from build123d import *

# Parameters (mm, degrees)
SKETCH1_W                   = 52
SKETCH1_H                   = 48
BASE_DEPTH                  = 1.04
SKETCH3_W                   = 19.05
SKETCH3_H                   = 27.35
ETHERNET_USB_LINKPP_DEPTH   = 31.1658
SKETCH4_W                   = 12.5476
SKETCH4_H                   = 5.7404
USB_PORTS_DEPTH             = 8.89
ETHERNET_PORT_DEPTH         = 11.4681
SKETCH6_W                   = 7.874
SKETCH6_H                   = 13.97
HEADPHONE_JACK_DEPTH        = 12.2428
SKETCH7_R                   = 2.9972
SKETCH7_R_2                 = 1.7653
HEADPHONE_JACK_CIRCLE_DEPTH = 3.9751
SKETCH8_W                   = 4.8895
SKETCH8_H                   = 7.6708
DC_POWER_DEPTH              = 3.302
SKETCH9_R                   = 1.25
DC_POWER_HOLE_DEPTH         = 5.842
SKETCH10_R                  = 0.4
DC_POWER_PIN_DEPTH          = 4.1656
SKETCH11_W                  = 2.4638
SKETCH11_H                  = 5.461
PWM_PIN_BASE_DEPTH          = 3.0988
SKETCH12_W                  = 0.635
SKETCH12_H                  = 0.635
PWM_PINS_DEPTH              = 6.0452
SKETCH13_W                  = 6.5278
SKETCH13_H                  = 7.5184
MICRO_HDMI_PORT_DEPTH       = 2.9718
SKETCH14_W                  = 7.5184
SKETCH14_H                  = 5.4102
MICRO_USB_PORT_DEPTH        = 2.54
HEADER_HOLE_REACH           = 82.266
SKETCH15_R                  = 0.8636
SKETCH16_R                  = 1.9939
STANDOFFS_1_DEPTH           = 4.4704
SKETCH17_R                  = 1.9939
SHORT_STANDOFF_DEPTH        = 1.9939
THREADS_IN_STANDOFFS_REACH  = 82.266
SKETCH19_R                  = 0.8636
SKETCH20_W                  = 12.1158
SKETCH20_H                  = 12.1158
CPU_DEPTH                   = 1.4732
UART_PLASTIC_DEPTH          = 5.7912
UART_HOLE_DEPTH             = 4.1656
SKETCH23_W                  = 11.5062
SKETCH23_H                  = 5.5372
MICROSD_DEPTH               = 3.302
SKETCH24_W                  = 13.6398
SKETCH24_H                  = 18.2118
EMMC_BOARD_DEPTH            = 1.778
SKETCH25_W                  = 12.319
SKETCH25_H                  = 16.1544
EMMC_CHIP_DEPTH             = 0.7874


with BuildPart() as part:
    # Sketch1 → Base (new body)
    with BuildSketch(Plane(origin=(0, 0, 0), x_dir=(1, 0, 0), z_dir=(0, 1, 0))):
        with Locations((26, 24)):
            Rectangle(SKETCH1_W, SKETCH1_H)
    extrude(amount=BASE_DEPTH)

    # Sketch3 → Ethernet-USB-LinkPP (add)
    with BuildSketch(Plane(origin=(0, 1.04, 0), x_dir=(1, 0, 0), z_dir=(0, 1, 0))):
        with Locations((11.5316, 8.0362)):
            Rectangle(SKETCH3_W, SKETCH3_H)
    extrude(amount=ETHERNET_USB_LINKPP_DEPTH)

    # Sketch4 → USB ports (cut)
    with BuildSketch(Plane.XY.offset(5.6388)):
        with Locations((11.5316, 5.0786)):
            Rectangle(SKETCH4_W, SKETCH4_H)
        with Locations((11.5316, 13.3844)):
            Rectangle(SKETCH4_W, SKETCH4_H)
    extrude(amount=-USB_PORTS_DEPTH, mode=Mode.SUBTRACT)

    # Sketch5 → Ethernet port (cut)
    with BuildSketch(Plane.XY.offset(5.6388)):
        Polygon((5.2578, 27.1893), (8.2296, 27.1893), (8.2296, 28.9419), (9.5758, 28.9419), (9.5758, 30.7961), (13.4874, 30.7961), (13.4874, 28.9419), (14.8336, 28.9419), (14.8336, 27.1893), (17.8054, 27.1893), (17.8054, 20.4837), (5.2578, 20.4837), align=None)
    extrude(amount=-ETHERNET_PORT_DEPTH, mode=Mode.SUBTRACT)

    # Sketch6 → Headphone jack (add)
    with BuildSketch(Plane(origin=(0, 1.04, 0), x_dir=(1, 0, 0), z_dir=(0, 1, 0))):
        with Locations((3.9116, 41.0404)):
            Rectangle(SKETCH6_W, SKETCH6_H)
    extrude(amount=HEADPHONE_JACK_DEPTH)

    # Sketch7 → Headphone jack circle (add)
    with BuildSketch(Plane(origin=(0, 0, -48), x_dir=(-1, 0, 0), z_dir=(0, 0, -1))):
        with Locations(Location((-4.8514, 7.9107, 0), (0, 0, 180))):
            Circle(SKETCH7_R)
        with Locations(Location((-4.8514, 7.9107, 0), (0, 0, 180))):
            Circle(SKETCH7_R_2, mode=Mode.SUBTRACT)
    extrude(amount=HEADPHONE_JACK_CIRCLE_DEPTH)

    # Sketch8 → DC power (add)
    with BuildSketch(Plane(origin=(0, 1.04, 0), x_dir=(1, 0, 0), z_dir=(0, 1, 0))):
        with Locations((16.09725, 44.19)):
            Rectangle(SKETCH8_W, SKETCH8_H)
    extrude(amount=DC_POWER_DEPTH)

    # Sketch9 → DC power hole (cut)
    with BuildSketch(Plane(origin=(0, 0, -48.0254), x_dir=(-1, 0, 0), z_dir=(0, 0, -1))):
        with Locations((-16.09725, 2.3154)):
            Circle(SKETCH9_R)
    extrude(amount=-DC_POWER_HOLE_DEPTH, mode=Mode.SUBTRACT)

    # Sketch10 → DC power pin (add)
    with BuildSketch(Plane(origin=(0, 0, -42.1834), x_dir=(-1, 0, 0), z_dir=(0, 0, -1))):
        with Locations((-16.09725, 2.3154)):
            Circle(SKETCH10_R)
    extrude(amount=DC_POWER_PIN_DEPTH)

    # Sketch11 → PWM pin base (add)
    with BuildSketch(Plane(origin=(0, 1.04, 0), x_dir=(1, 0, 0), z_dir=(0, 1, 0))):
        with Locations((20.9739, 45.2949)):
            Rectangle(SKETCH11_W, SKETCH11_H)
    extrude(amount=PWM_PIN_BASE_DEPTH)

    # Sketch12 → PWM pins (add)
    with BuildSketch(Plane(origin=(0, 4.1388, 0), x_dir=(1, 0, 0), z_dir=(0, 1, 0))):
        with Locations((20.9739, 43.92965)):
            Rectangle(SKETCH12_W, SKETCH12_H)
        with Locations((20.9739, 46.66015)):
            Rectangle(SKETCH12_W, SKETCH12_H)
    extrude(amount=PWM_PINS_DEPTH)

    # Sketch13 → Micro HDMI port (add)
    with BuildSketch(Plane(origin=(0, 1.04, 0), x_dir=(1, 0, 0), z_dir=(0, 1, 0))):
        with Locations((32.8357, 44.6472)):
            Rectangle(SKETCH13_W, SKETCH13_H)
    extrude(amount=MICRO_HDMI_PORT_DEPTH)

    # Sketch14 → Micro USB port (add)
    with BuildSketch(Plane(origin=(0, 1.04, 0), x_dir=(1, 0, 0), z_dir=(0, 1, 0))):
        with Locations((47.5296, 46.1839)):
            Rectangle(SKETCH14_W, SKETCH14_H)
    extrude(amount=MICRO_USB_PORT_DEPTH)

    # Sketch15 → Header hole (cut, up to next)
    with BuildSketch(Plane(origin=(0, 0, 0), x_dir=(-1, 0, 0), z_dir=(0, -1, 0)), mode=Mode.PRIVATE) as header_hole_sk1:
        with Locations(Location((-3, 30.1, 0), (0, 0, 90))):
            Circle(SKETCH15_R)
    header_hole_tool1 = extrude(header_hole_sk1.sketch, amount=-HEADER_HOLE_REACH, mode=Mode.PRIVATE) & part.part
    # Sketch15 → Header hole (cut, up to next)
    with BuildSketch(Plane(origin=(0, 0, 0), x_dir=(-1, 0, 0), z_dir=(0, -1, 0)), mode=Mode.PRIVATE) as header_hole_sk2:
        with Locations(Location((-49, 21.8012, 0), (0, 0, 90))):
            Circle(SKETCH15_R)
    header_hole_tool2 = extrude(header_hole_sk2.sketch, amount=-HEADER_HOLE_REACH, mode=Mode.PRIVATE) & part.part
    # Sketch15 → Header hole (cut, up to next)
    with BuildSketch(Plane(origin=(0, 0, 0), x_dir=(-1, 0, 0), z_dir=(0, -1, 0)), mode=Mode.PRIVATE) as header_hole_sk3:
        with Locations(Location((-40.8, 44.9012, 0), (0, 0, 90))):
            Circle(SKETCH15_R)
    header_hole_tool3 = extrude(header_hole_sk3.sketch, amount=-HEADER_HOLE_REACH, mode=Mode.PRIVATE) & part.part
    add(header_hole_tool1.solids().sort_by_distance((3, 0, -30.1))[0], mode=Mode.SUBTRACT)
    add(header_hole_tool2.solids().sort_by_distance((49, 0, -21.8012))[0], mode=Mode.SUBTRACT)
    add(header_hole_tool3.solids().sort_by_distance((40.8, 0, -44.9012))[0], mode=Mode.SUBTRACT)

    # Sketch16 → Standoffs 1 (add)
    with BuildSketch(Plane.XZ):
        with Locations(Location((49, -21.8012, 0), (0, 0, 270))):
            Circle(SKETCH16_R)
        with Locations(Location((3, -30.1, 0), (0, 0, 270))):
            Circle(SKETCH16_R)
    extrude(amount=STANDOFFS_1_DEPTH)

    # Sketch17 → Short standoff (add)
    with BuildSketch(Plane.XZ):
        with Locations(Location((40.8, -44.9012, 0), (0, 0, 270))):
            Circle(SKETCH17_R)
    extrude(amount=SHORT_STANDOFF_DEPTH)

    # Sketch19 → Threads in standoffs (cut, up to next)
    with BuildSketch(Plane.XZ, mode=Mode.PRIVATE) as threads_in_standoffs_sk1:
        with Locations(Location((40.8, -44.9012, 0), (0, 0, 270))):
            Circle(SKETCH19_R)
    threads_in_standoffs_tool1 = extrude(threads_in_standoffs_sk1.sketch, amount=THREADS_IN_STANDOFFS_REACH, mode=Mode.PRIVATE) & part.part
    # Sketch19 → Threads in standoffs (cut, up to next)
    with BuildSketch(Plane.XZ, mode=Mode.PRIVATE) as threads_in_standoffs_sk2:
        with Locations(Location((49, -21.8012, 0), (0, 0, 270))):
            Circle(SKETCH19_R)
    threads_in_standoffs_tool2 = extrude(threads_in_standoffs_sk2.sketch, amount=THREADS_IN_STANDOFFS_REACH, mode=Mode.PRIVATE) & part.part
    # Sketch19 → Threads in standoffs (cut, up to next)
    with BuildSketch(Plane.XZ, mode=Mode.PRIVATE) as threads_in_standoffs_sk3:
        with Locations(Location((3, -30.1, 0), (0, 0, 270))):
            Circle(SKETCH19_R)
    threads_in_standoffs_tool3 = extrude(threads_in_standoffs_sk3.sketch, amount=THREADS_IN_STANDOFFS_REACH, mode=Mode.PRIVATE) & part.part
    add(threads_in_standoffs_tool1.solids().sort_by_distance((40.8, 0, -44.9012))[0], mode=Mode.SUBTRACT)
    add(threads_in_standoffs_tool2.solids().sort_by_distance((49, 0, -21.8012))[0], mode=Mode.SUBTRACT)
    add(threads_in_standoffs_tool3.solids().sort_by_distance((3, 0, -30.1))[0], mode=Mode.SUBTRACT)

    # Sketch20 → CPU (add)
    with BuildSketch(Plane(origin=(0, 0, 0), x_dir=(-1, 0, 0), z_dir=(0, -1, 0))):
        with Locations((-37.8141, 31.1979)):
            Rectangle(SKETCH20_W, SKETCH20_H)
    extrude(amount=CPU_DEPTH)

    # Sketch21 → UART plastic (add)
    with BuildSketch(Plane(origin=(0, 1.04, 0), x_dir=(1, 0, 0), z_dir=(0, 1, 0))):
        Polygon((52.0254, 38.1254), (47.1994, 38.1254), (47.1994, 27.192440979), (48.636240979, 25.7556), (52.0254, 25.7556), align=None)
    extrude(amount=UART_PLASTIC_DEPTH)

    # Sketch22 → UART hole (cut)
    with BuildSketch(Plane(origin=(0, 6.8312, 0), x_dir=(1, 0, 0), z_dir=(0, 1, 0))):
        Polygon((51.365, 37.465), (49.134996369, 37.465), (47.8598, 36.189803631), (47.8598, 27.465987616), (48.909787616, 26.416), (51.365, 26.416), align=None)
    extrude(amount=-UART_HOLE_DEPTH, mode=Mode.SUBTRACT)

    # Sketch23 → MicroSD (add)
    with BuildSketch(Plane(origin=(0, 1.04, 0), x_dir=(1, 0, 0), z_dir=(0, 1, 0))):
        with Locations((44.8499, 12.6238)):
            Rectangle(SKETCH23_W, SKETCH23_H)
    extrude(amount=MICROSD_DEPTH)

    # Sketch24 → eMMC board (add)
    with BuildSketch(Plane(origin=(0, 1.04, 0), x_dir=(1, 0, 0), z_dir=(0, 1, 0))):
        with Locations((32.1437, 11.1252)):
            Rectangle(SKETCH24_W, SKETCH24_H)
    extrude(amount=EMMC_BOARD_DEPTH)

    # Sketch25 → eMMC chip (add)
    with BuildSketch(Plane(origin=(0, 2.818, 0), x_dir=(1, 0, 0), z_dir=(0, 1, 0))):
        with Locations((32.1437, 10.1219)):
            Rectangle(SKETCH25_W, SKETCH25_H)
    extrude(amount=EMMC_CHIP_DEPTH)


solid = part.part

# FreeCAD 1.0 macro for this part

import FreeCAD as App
import Part
import Sketcher

V = App.Vector
Q = App.Units.Quantity

doc = App.newDocument("Part")
body = doc.addObject("PartDesign::Body", "Body")

sketch1 = body.newObject("Sketcher::SketchObject", "Sketch")
sketch1.AttachmentSupport = (doc.getObject("XZ_Plane"), [""])
sketch1.MapMode = "FlatFace"
sketch1.addGeometry(Part.LineSegment(V(0, -48, 0), V(0, 0, 0)), False)
sketch1.addGeometry(Part.LineSegment(V(0, 0, 0), V(52, 0, 0)), False)
sketch1.addGeometry(Part.LineSegment(V(52, 0, 0), V(52, -48, 0)), False)
sketch1.addGeometry(Part.LineSegment(V(52, -48, 0), V(0, -48, 0)), False)
sketch1.addConstraint(Sketcher.Constraint("Coincident", 0, 2, 1, 1))
sketch1.addConstraint(Sketcher.Constraint("Coincident", 1, 2, 2, 1))
sketch1.addConstraint(Sketcher.Constraint("Coincident", 2, 2, 3, 1))
sketch1.addConstraint(Sketcher.Constraint("Coincident", 3, 2, 0, 1))
sketch1.addConstraint(Sketcher.Constraint("Vertical", 0))
sketch1.addConstraint(Sketcher.Constraint("Horizontal", 1))
sketch1.addConstraint(Sketcher.Constraint("Vertical", 2))
sketch1.addConstraint(Sketcher.Constraint("Horizontal", 3))
sketch1.addConstraint(Sketcher.Constraint("Coincident", 0, 2, -1, 1))
sketch1.addConstraint(Sketcher.Constraint("DistanceX", 1, 1, 1, 2, 52.0))
sketch1.addConstraint(Sketcher.Constraint("DistanceY", 0, 1, 0, 2, 48.0))
pad1 = body.newObject("PartDesign::Pad", "Pad")
pad1.Profile = sketch1
pad1.Length = 1.04
pad1.Reversed = True

sketch2 = body.newObject("Sketcher::SketchObject", "Sketch001")
sketch2.AttachmentSupport = (doc.getObject("XZ_Plane"), [""])
sketch2.MapMode = "FlatFace"
sketch2.AttachmentOffset = App.Placement(V(0, 0, -1.04), App.Rotation())
sketch2.addGeometry(Part.LineSegment(V(2, -22, 0), V(2, 6, 0)), False)
sketch2.addGeometry(Part.LineSegment(V(2, 6, 0), V(21, 6, 0)), False)
sketch2.addGeometry(Part.LineSegment(V(21, 6, 0), V(21, -22, 0)), False)
sketch2.addGeometry(Part.LineSegment(V(21, -22, 0), V(2, -22, 0)), False)
sketch2.addConstraint(Sketcher.Constraint("Coincident", 0, 2, 1, 1))
sketch2.addConstraint(Sketcher.Constraint("Coincident", 1, 2, 2, 1))
sketch2.addConstraint(Sketcher.Constraint("Coincident", 2, 2, 3, 1))
sketch2.addConstraint(Sketcher.Constraint("Coincident", 3, 2, 0, 1))
sketch2.addConstraint(Sketcher.Constraint("Vertical", 0))
sketch2.addConstraint(Sketcher.Constraint("Horizontal", 1))
sketch2.addConstraint(Sketcher.Constraint("Vertical", 2))
sketch2.addConstraint(Sketcher.Constraint("Horizontal", 3))
sketch2.addConstraint(Sketcher.Constraint("DistanceX", 1, 1, 1, 2, Q("0.75 in")))
sketch2.addConstraint(Sketcher.Constraint("DistanceX", -1, 1, 0, 2, Q("0.079 in")))
sketch2.addConstraint(Sketcher.Constraint("DistanceY", -1, 1, 0, 2, Q("0.222 in")))
sketch2.addConstraint(Sketcher.Constraint("DistanceY", 0, 1, 0, 2, 27.35))
pad2 = body.newObject("PartDesign::Pad", "Pad001")
pad2.Profile = sketch2
pad2.Length = Q("1.227 in")
pad2.Reversed = True

sketch3 = body.newObject("Sketcher::SketchObject", "Sketch002")
sketch3.AttachmentSupport = (doc.getObject("XY_Plane"), [""])
sketch3.MapMode = "FlatFace"
sketch3.AttachmentOffset = App.Placement(V(0, 0, 0.222 * 25.4), App.Rotation())
sketch3.addGeometry(Part.LineSegment(V(5, 8, 0), V(5, 2, 0)), False)
sketch3.addGeometry(Part.LineSegment(V(5, 2, 0), V(18, 2, 0)), False)
sketch3.addGeometry(Part.LineSegment(V(18, 2, 0), V(18, 8, 0)), False)
sketch3.addGeometry(Part.LineSegment(V(18, 8, 0), V(5, 8, 0)), False)
sketch3.addGeometry(Part.LineSegment(V(5, 16, 0), V(5, 11, 0)), False)
sketch3.addGeometry(Part.LineSegment(V(5, 11, 0), V(18, 11, 0)), False)
sketch3.addGeometry(Part.LineSegment(V(18, 11, 0), V(18, 16, 0)), False)
sketch3.addGeometry(Part.LineSegment(V(18, 16, 0), V(5, 16, 0)), False)
sketch3.addConstraint(Sketcher.Constraint("Coincident", 0, 2, 1, 1))
sketch3.addConstraint(Sketcher.Constraint("Coincident", 1, 2, 2, 1))
sketch3.addConstraint(Sketcher.Constraint("Coincident", 2, 2, 3, 1))
sketch3.addConstraint(Sketcher.Constraint("Coincident", 3, 2, 0, 1))
sketch3.addConstraint(Sketcher.Constraint("Coincident", 4, 2, 5, 1))
sketch3.addConstraint(Sketcher.Constraint("Coincident", 5, 2, 6, 1))
sketch3.addConstraint(Sketcher.Constraint("Coincident", 6, 2, 7, 1))
sketch3.addConstraint(Sketcher.Constraint("Coincident", 7, 2, 4, 1))
sketch3.addConstraint(Sketcher.Constraint("Vertical", 0))
sketch3.addConstraint(Sketcher.Constraint("Horizontal", 1))
sketch3.addConstraint(Sketcher.Constraint("Vertical", 2))
sketch3.addConstraint(Sketcher.Constraint("Horizontal", 3))
sketch3.addConstraint(Sketcher.Constraint("Vertical", 4))
sketch3.addConstraint(Sketcher.Constraint("Horizontal", 5))
sketch3.addConstraint(Sketcher.Constraint("Vertical", 6))
sketch3.addConstraint(Sketcher.Constraint("Horizontal", 7))
sketch3.addConstraint(Sketcher.Constraint("Vertical", 3, 2, 4, 2))
sketch3.addConstraint(Sketcher.Constraint("Vertical", 2, 2, 5, 2))
sketch3.addConstraint(Sketcher.Constraint("Equal", 2, 4))
sketch3.addConstraint(Sketcher.Constraint("DistanceX", 1, 1, 1, 2, Q("0.494 in")))
sketch3.addConstraint(Sketcher.Constraint("DistanceY", 0, 2, 0, 1, Q("0.226 in")))
sketch3.addConstraint(Sketcher.Constraint("DistanceX", -1, 1, 0, 2, Q("0.207 in")))
sketch3.addConstraint(Sketcher.Constraint("DistanceY", 3, 2, 4, 2, Q("0.101 in")))
sketch3.addConstraint(Sketcher.Constraint("DistanceY", -1, 1, 0, 2, 2.2084))
pocket1 = body.newObject("PartDesign::Pocket", "Pocket")
pocket1.Profile = sketch3
pocket1.Length = Q("0.35 in")

sketch4 = body.newObject("Sketcher::SketchObject", "Sketch003")
sketch4.AttachmentSupport = (doc.getObject("XY_Plane"), [""])
sketch4.MapMode = "FlatFace"
sketch4.AttachmentOffset = App.Placement(V(0, 0, 0.222 * 25.4), App.Rotation())
sketch4.addGeometry(Part.LineSegment(V(8.2, 27.2, 0), V(5.3, 27.2, 0)), False)
sketch4.addGeometry(Part.LineSegment(V(5.3, 27.2, 0), V(5.3, 20.5, 0)), False)
sketch4.addGeometry(Part.LineSegment(V(5.3, 20.5, 0), V(17.8, 20.5, 0)), False)
sketch4.addGeometry(Part.LineSegment(V(17.8, 20.5, 0), V(17.8, 27.2, 0)), False)
sketch4.addGeometry(Part.LineSegment(V(17.8, 27.2, 0), V(14.8, 27.2, 0)), False)
sketch4.addGeometry(Part.LineSegment(V(14.8, 27.2, 0), V(14.8, 28.9, 0)), False)
sketch4.addGeometry(Part.LineSegment(V(14.8, 28.9, 0), V(13.5, 28.9, 0)), False)
sketch4.addGeometry(Part.LineSegment(V(13.5, 28.9, 0), V(13.5, 30.8, 0)), False)
sketch4.addGeometry(Part.LineSegment(V(13.5, 30.8, 0), V(9.6, 30.8, 0)), False)
sketch4.addGeometry(Part.LineSegment(V(9.6, 30.8, 0), V(9.6, 28.9, 0)), False)
sketch4.addGeometry(Part.LineSegment(V(9.6, 28.9, 0), V(8.2, 28.9, 0)), False)
sketch4.addGeometry(Part.LineSegment(V(8.2, 28.9, 0), V(8.2, 27.2, 0)), False)
sketch4.addConstraint(Sketcher.Constraint("Coincident", 0, 2, 1, 1))
sketch4.addConstraint(Sketcher.Constraint("Coincident", 1, 2, 2, 1))
sketch4.addConstraint(Sketcher.Constraint("Coincident", 2, 2, 3, 1))
sketch4.addConstraint(Sketcher.Constraint("Coincident", 3, 2, 4, 1))
sketch4.addConstraint(Sketcher.Constraint("Coincident", 4, 2, 5, 1))
sketch4.addConstraint(Sketcher.Constraint("Coincident", 5, 2, 6, 1))
sketch4.addConstraint(Sketcher.Constraint("Coincident", 6, 2, 7, 1))
sketch4.addConstraint(Sketcher.Constraint("Coincident", 7, 2, 8, 1))
sketch4.addConstraint(Sketcher.Constraint("Coincident", 8, 2, 9, 1))
sketch4.addConstraint(Sketcher.Constraint("Coincident", 9, 2, 10, 1))
sketch4.addConstraint(Sketcher.Constraint("Coincident", 10, 2, 11, 1))
sketch4.addConstraint(Sketcher.Constraint("Coincident", 11, 2, 0, 1))
sketch4.addConstraint(Sketcher.Constraint("Horizontal", 0))
sketch4.addConstraint(Sketcher.Constraint("Vertical", 1))
sketch4.addConstraint(Sketcher.Constraint("Horizontal", 2))
sketch4.addConstraint(Sketcher.Constraint("Vertical", 3))
sketch4.addConstraint(Sketcher.Constraint("Horizontal", 4))
sketch4.addConstraint(Sketcher.Constraint("Vertical", 5))
sketch4.addConstraint(Sketcher.Constraint("Horizontal", 6))
sketch4.addConstraint(Sketcher.Constraint("Vertical", 7))
sketch4.addConstraint(Sketcher.Constraint("Horizontal", 8))
sketch4.addConstraint(Sketcher.Constraint("Vertical", 9))
sketch4.addConstraint(Sketcher.Constraint("Horizontal", 10))
sketch4.addConstraint(Sketcher.Constraint("Vertical", 11))
sketch4.addConstraint(Sketcher.Constraint("Horizontal", 0, 2, 3, 2))
sketch4.addConstraint(Sketcher.Constraint("Horizontal", 6, 2, 9, 2))
sketch4.addConstraint(Sketcher.Constraint("Equal", 0, 4))
sketch4.addConstraint(Sketcher.Constraint("Equal", 6, 10))
sketch4.addConstraint(Sketcher.Constraint("DistanceX", 0, 2, 0, 1, Q("0.117 in")))
sketch4.addConstraint(Sketcher.Constraint("DistanceX", 2, 1, 2, 2, Q("0.494 in")))
sketch4.addConstraint(Sketcher.Constraint("DistanceX", 6, 2, 6, 1, Q("0.053 in")))
sketch4.addConstraint(Sketcher.Constraint("DistanceY", 1, 2, 1, 1, Q("0.264 in")))
sketch4.addConstraint(Sketcher.Constraint("DistanceY", 5, 1, 5, 2, Q("0.069 in")))
sketch4.addConstraint(Sketcher.Constraint("DistanceY", 7, 1, 7, 2, Q("0.073 in")))
sketch4.addConstraint(Sketcher.Constraint("DistanceX", -1, 1, 0, 2, Q("0.207 in")))
sketch4.addConstraint(Sketcher.Constraint("DistanceY", -1, 1, 0, 2, 27.1893))
pocket2 = body.newObject("PartDesign::Pocket", "Pocket001")
pocket2.Profile = sketch4
pocket2.Length = Q("0.4515 in")

sketch5 = body.newObject("Sketcher::SketchObject", "Sketch004")
sketch5.AttachmentSupport = (doc.getObject("XZ_Plane"), [""])
sketch5.MapMode = "FlatFace"
sketch5.AttachmentOffset = App.Placement(V(0, 0, -1.04), App.Rotation())
sketch5.addGeometry(Part.LineSegment(V(0, -48, 0), V(0, -34, 0)), False)
sketch5.addGeometry(Part.LineSegment(V(0, -34, 0), V(8, -34, 0)), False)
sketch5.addGeometry(Part.LineSegment(V(8, -34, 0), V(8, -48, 0)), False)
sketch5.addGeometry(Part.LineSegment(V(8, -48, 0), V(0, -48, 0)), False)
sketch5.addConstraint(Sketcher.Constraint("Coincident", 0, 2, 1, 1))
sketch5.addConstraint(Sketcher.Constraint("Coincident", 1, 2, 2, 1))
sketch5.addConstraint(Sketcher.Constraint("Coincident", 2, 2, 3, 1))
sketch5.addConstraint(Sketcher.Constraint("Coincident", 3, 2, 0, 1))
sketch5.addConstraint(Sketcher.Constraint("Vertical", 0))
sketch5.addConstraint(Sketcher.Constraint("Horizontal", 1))
sketch5.addConstraint(Sketcher.Constraint("Vertical", 2))
sketch5.addConstraint(Sketcher.Constraint("Horizontal", 3))
sketch5.addConstraint(Sketcher.Constraint("DistanceX", 1, 1, 1, 2, Q("0.31 in")))
sketch5.addConstraint(Sketcher.Constraint("DistanceY", 0, 1, 0, 2, Q("0.55 in")))
sketch5.addConstraint(Sketcher.Constraint("DistanceX", 0, 2, -1, 1, Q("0.001 in")))
sketch5.addConstraint(Sketcher.Constraint("DistanceY", 0, 2, -1, 1, 34.0554))
pad3 = body.newObject("PartDesign::Pad", "Pad002")
pad3.Profile = sketch5
pad3.Length = Q("0.482 in")
pad3.Reversed = True

sketch6 = body.newObject("Sketcher::SketchObject", "Sketch005")
sketch6.AttachmentSupport = (doc.getObject("XY_Plane"), [""])
sketch6.MapMode = "FlatFace"
sketch6.AttachmentOffset = App.Placement(V(0, 0, -48), App.Rotation())
sketch6.addGeometry(Part.Circle(V(4.9, 7.9, 0), V(0, 0, 1), 3), False)
sketch6.addGeometry(Part.Circle(V(4.9, 7.9, 0), V(0, 0, 1), 1.8), False)
sketch6.addConstraint(Sketcher.Constraint("Coincident", 1, 3, 0, 3))
sketch6.addConstraint(Sketcher.Constraint("Diameter", 0, Q("0.236 in")))
sketch6.addConstraint(Sketcher.Constraint("Diameter", 1, Q("0.139 in")))
sketch6.addConstraint(Sketcher.Constraint("DistanceX", -1, 1, 0, 3, Q("0.191 in")))
sketch6.addConstraint(Sketcher.Constraint("DistanceY", -1, 1, 0, 3, 7.9107))
pad4 = body.newObject("PartDesign::Pad", "Pad003")
pad4.Profile = sketch6
pad4.Length = Q("0.1565 in")
pad4.Reversed = True

sketch7 = body.newObject("Sketcher::SketchObject", "Sketch006")
sketch7.AttachmentSupport = (doc.getObject("XZ_Plane"), [""])
sketch7.MapMode = "FlatFace"
sketch7.AttachmentOffset = App.Placement(V(0, 0, -1.04), App.Rotation())
sketch7.addGeometry(Part.LineSegment(V(13.7, -48, 0), V(13.7, -40.4, 0)), False)
sketch7.addGeometry(Part.LineSegment(V(13.7, -40.4, 0), V(18.5, -40.4, 0)), False)
sketch7.addGeometry(Part.LineSegment(V(18.5, -40.4, 0), V(18.5, -48, 0)), False)
sketch7.addGeometry(Part.LineSegment(V(18.5, -48, 0), V(13.7, -48, 0)), False)
sketch7.addConstraint(Sketcher.Constraint("Coincident", 0, 2, 1, 1))
sketch7.addConstraint(Sketcher.Constraint("Coincident", 1, 2, 2, 1))
sketch7.addConstraint(Sketcher.Constraint("Coincident", 2, 2, 3, 1))
sketch7.addConstraint(Sketcher.Constraint("Coincident", 3, 2, 0, 1))
sketch7.addConstraint(Sketcher.Constraint("Vertical", 0))
sketch7.addConstraint(Sketcher.Constraint("Horizontal", 1))
sketch7.addConstraint(Sketcher.Constraint("Vertical", 2))
sketch7.addConstraint(Sketcher.Constraint("Horizontal", 3))
sketch7.addConstraint(Sketcher.Constraint("DistanceY", 0, 1, 0, 2, Q("0.302 in")))
sketch7.addConstraint(Sketcher.Constraint("DistanceX", -1, 1, 1, 2, Q("0.73 in")))
sketch7.addConstraint(Sketcher.Constraint("DistanceX", 1, 1, 1, 2, Q("0.1925 in")))
sketch7.addConstraint(Sketcher.Constraint("DistanceY", 0, 2, -1, 1, 40.3546))
pad5 = body.newObject("PartDesign::Pad", "Pad004")
pad5.Profile = sketch7
pad5.Length = Q("0.13 in")
pad5.Reversed = True

sketch8 = body.newObject("Sketcher::SketchObject", "Sketch007")
sketch8.AttachmentSupport = (doc.getObject("XY_Plane"), [""])
sketch8.MapMode = "FlatFace"
sketch8.AttachmentOffset = App.Placement(V(0, 0, -48.0254), App.Rotation())
sketch8.addGeometry(Part.Circle(V(16.1, 2.3, 0), V(0, 0, 1), 1.2), False)
sketch8.addConstraint(Sketcher.Constraint("Diameter", 0, 2.5))
sketch8.addConstraint(Sketcher.Constraint("DistanceY", -1, 1, 0, 3, 2.3154))
sketch8.addConstraint(Sketcher.Constraint("DistanceX", -1, 1, 0, 3, 16.09725))
pocket3 = body.newObject("PartDesign::Pocket", "Pocket002")
pocket3.Profile = sketch8
pocket3.Length = Q("0.23 in")
pocket3.Reversed = True

sketch9 = body.newObject("Sketcher::SketchObject", "Sketch008")
sketch9.AttachmentSupport = (doc.getObject("XY_Plane"), [""])
sketch9.MapMode = "FlatFace"
sketch9.AttachmentOffset = App.Placement(V(0, 0, -42.1834), App.Rotation())
sketch9.addGeometry(Part.Circle(V(16.1, 2.32, 0), V(0, 0, 1), 0.4), False)
sketch9.addConstraint(Sketcher.Constraint("Diameter", 0, 0.8))
sketch9.addConstraint(Sketcher.Constraint("DistanceY", -1, 1, 0, 3, 2.3154))
sketch9.addConstraint(Sketcher.Constraint("DistanceX", -1, 1, 0, 3, 16.09725))
pad6 = body.newObject("PartDesign::Pad", "Pad005")
pad6.Profile = sketch9
pad6.Length = Q("0.164 in")
pad6.Reversed = True

sketch10 = body.newObject("Sketcher::SketchObject", "Sketch009")
sketch10.AttachmentSupport = (doc.getObject("XZ_Plane"), [""])
sketch10.MapMode = "FlatFace"
sketch10.AttachmentOffset = App.Placement(V(0, 0, -1.04), App.Rotation())
sketch10.addGeometry(Part.LineSegment(V(19.7, -48, 0), V(19.7, -42.6, 0)), False)
sketch10.addGeometry(Part.LineSegment(V(19.7, -42.6, 0), V(22.2, -42.6, 0)), False)
sketch10.addGeometry(Part.LineSegment(V(22.2, -42.6, 0), V(22.2, -48, 0)), False)
sketch10.addGeometry(Part.LineSegment(V(22.2, -48, 0), V(19.7, -48, 0)), False)
sketch10.addConstraint(Sketcher.Constraint("Coincident", 0, 2, 1, 1))
sketch10.addConstraint(Sketcher.Constraint("Coincident", 1, 2, 2, 1))
sketch10.addConstraint(Sketcher.Constraint("Coincident", 2, 2, 3, 1))
sketch10.addConstraint(Sketcher.Constraint("Coincident", 3, 2, 0, 1))
sketch10.addConstraint(Sketcher.Constraint("Vertical", 0))
sketch10.addConstraint(Sketcher.Constraint("Horizontal", 1))
sketch10.addConstraint(Sketcher.Constraint("Vertical", 2))
sketch10.addConstraint(Sketcher.Constraint("Horizontal", 3))
sketch10.addConstraint(Sketcher.Constraint("DistanceX", 1, 1, 1, 2, Q("0.097 in")))
sketch10.addConstraint(Sketcher.Constraint("DistanceY", 0, 1, 0, 2, Q("0.215 in")))
sketch10.addConstraint(Sketcher.Constraint("DistanceX", -1, 1, 0, 2, 19.742))
sketch10.addConstraint(Sketcher.Constraint("DistanceY", 0, 2, -1, 1, 42.5644))
pad7 = body.newObject("PartDesign::Pad", "Pad006")
pad7.Profile = sketch10
pad7.Length = Q("0.122 in")
pad7.Reversed = True

sketch11 = body.newObject("Sketcher::SketchObject", "Sketch010")
sketch11.AttachmentSupport = (doc.getObject("XZ_Plane"), [""])
sketch11.MapMode = "FlatFace"
sketch11.AttachmentOffset = App.Placement(V(0, 0, -4.1388), App.Rotation())
sketch11.addGeometry(Part.LineSegment(V(20.7, -44.2, 0), V(20.7, -43.6, 0)), False)
sketch11.addGeometry(Part.LineSegment(V(20.7, -43.6, 0), V(21.3, -43.6, 0)), False)
sketch11.addGeometry(Part.LineSegment(V(21.3, -43.6, 0), V(21.3, -44.2, 0)), False)
sketch11.addGeometry(Part.LineSegment(V(21.3, -44.2, 0), V(20.7, -44.2, 0)), False)
sketch11.addGeometry(Part.LineSegment(V(20.7, -47, 0), V(20.7, -46.3, 0)), False)
sketch11.addGeometry(Part.LineSegment(V(20.7, -46.3, 0), V(21.3, -46.3, 0)), False)
sketch11.addGeometry(Part.LineSegment(V(21.3, -46.3, 0), V(21.3, -47, 0)), False)
sketch11.addGeometry(Part.LineSegment(V(21.3, -47, 0), V(20.7, -47, 0)), False)
sketch11.addConstraint(Sketcher.Constraint("Coincident", 0, 2, 1, 1))
sketch11.addConstraint(Sketcher.Constraint("Coincident", 1, 2, 2, 1))
sketch11.addConstraint(Sketcher.Constraint("Coincident", 2, 2, 3, 1))
sketch11.addConstraint(Sketcher.Constraint("Coincident", 3, 2, 0, 1))
sketch11.addConstraint(Sketcher.Constraint("Coincident", 4, 2, 5, 1))
sketch11.addConstraint(Sketcher.Constraint("Coincident", 5, 2, 6, 1))
sketch11.addConstraint(Sketcher.Constraint("Coincident", 6, 2, 7, 1))
sketch11.addConstraint(Sketcher.Constraint("Coincident", 7, 2, 4, 1))
sketch11.addConstraint(Sketcher.Constraint("Vertical", 0))
sketch11.addConstraint(Sketcher.Constraint("Horizontal", 1))
sketch11.addConstraint(Sketcher.Constraint("Vertical", 2))
sketch11.addConstraint(Sketcher.Constraint("Horizontal", 3))
sketch11.addConstraint(Sketcher.Constraint("Vertical", 4))
sketch11.addConstraint(Sketcher.Constraint("Horizontal", 5))
sketch11.addConstraint(Sketcher.Constraint("Vertical", 6))
sketch11.addConstraint(Sketcher.Constraint("Horizontal", 7))
sketch11.addConstraint(Sketcher.Constraint("Vertical", 3, 2, 4, 2))
sketch11.addConstraint(Sketcher.Constraint("Vertical", 2, 2, 5, 2))
sketch11.addConstraint(Sketcher.Constraint("Equal", 7, 0))
sketch11.addConstraint(Sketcher.Constraint("Equal", 2, 4))
sketch11.addConstraint(Sketcher.Constraint("DistanceX", 1, 1, 1, 2, Q("0.025 in")))
sketch11.addConstraint(Sketcher.Constraint("DistanceY", 4, 2, 3, 2, Q("0.0825 in")))
sketch11.addConstraint(Sketcher.Constraint("DistanceX", -1, 1, 0, 2, 20.6564))
sketch11.addConstraint(Sketcher.Constraint("DistanceY", 0, 2, -1, 1, 43.61215))
pad8 = body.newObject("PartDesign::Pad", "Pad007")
pad8.Profile = sketch11
pad8.Length = Q("0.238 in")
pad8.Reversed = True

sketch12 = body.newObject("Sketcher::SketchObject", "Sketch011")
sketch12.AttachmentSupport = (doc.getObject("XZ_Plane"), [""])
sketch12.MapMode = "FlatFace"
sketch12.AttachmentOffset = App.Placement(V(0, 0, -1.04), App.Rotation())
sketch12.addGeometry(Part.LineSegment(V(30, -48, 0), V(30, -41, 0)), False)
sketch12.addGeometry(Part.LineSegment(V(30, -41, 0), V(36, -41, 0)), False)
sketch12.addGeometry(Part.LineSegment(V(36, -41, 0), V(36, -48, 0)), False)
sketch12.addGeometry(Part.LineSegment(V(36, -48, 0), V(30, -48, 0)), False)
sketch12.addConstraint(Sketcher.Constraint("Coincident", 0, 2, 1, 1))
sketch12.addConstraint(Sketcher.Constraint("Coincident", 1, 2, 2, 1))
sketch12.addConstraint(Sketcher.Constraint("Coincident", 2, 2, 3, 1))
sketch12.addConstraint(Sketcher.Constraint("Coincident", 3, 2, 0, 1))
sketch12.addConstraint(Sketcher.Constraint("Vertical", 0))
sketch12.addConstraint(Sketcher.Constraint("Horizontal", 1))
sketch12.addConstraint(Sketcher.Constraint("Vertical", 2))
sketch12.addConstraint(Sketcher.Constraint("Horizontal", 3))
sketch12.addConstraint(Sketcher.Constraint("DistanceX", 1, 1, 1, 2, Q("0.257 in")))
sketch12.addConstraint(Sketcher.Constraint("DistanceY", 0, 1, 0, 2, Q("0.296 in")))
sketch12.addConstraint(Sketcher.Constraint("DistanceX", -1, 1, 0, 2, 29.5718))
sketch12.addConstraint(Sketcher.Constraint("DistanceY", 0, 2, -1, 1, 40.888))
pad9 = body.newObject("PartDesign::Pad", "Pad008")
pad9.Profile = sketch12
pad9.Length = Q("0.117 in")
pad9.Reversed = True

sketch13 = body.newObject("Sketcher::SketchObject", "Sketch012")
sketch13.AttachmentSupport = (doc.getObject("XZ_Plane"), [""])
sketch13.MapMode = "FlatFace"
sketch13.AttachmentOffset = App.Placement(V(0, 0, -1.04), App.Rotation())
sketch13.addGeometry(Part.LineSegment(V(44, -49, 0), V(44, -43, 0)), False)
sketch13.addGeometry(Part.LineSegment(V(44, -43, 0), V(51, -43, 0)), False)
sketch13.addGeometry(Part.LineSegment(V(51, -43, 0), V(51, -49, 0)), False)
sketch13.addGeometry(Part.LineSegment(V(51, -49, 0), V(44, -49, 0)), False)
sketch13.addConstraint(Sketcher.Constraint("Coincident", 0, 2, 1, 1))
sketch13.addConstraint(Sketcher.Constraint("Coincident", 1, 2, 2, 1))
sketch13.addConstraint(Sketcher.Constraint("Coincident", 2, 2, 3, 1))
sketch13.addConstraint(Sketcher.Constraint("Coincident", 3, 2, 0, 1))
sketch13.addConstraint(Sketcher.Constraint("Vertical", 0))
sketch13.addConstraint(Sketcher.Constraint("Horizontal", 1))
sketch13.addConstraint(Sketcher.Constraint("Vertical", 2))
sketch13.addConstraint(Sketcher.Constraint("Horizontal", 3))
sketch13.addConstraint(Sketcher.Constraint("DistanceX", 1, 1, 1, 2, Q("0.296 in")))
sketch13.addConstraint(Sketcher.Constraint("DistanceY", 0, 1, 0, 2, Q("0.213 in")))
sketch13.addConstraint(Sketcher.Constraint("DistanceX", -1, 1, 0, 2, 43.7704))
sketch13.addConstraint(Sketcher.Constraint("DistanceY", 0, 2, -1, 1, 43.4788))
pad10 = body.newObject("PartDesign::Pad", "Pad009")
pad10.Profile = sketch13
pad10.Length = Q("0.1 in")
pad10.Reversed = True

sketch14 = body.newObject("Sketcher::SketchObject", "Sketch013")
sketch14.AttachmentSupport = (doc.getObject("XZ_Plane"), [""])
sketch14.MapMode = "FlatFace"
sketch14.addGeometry(Part.Circle(V(3, -30.1, 0), V(0, 0, 1), 0.9), False)
sketch14.addConstraint(Sketcher.Constraint("Diameter", 0, Q("0.068 in")))
sketch14.addConstraint(Sketcher.Constraint("DistanceX", -1, 1, 0, 3, 3.0))
sketch14.addConstraint(Sketcher.Constraint("DistanceY", 0, 3, -1, 1, 30.1))
pocket4 = body.newObject("PartDesign::Pocket", "Pocket003")
pocket4.Profile = sketch14
pocket4.Type = "UpToFirst"

sketch15 = body.newObject("Sketcher::SketchObject", "Sketch014")
sketch15.AttachmentSupport = (doc.getObject("XZ_Plane"), [""])
sketch15.MapMode = "FlatFace"
sketch15.addGeometry(Part.Circle(V(49, -21.8, 0), V(0, 0, 1), 0.9), False)
sketch15.addConstraint(Sketcher.Constraint("Diameter", 0, Q("0.068 in")))
sketch15.addConstraint(Sketcher.Constraint("DistanceX", -1, 1, 0, 3, 49.0))
sketch15.addConstraint(Sketcher.Constraint("DistanceY", 0, 3, -1, 1, 21.8012))
pocket5 = body.newObject("PartDesign::Pocket", "Pocket004")
pocket5.Profile = sketch15
pocket5.Type = "UpToFirst"

sketch16 = body.newObject("Sketcher::SketchObject", "Sketch015")
sketch16.AttachmentSupport = (doc.getObject("XZ_Plane"), [""])
sketch16.MapMode = "FlatFace"
sketch16.addGeometry(Part.Circle(V(40.8, -44.9, 0), V(0, 0, 1), 0.9), False)
sketch16.addConstraint(Sketcher.Constraint("Diameter", 0, Q("0.068 in")))
sketch16.addConstraint(Sketcher.Constraint("DistanceX", -1, 1, 0, 3, 40.8))
sketch16.addConstraint(Sketcher.Constraint("DistanceY", 0, 3, -1, 1, 44.9012))
pocket6 = body.newObject("PartDesign::Pocket", "Pocket005")
pocket6.Profile = sketch16
pocket6.Type = "UpToFirst"

sketch17 = body.newObject("Sketcher::SketchObject", "Sketch016")
sketch17.AttachmentSupport = (doc.getObject("XZ_Plane"), [""])
sketch17.MapMode = "FlatFace"
sketch17.addGeometry(Part.Circle(V(49, -21.8, 0), V(0, 0, 1), 2), False)
sketch17.addGeometry(Part.Circle(V(3, -30.1, 0), V(0, 0, 1), 2), False)
sketch17.addConstraint(Sketcher.Constraint("Equal", 0, 1))
sketch17.addConstraint(Sketcher.Constraint("Diameter", 0, Q("0.157 in")))
sketch17.addConstraint(Sketcher.Constraint("DistanceX", -1, 1, 0, 3, 49.0))
sketch17.addConstraint(Sketcher.Constraint("DistanceY", 0, 3, -1, 1, 21.8012))
sketch17.addConstraint(Sketcher.Constraint("DistanceX", -1, 1, 1, 3, 3.0))
sketch17.addConstraint(Sketcher.Constraint("DistanceY", 1, 3, -1, 1, 30.1))
pad11 = body.newObject("PartDesign::Pad", "Pad010")
pad11.Profile = sketch17
pad11.Length = Q("0.176 in")

sketch18 = body.newObject("Sketcher::SketchObject", "Sketch017")
sketch18.AttachmentSupport = (doc.getObject("XZ_Plane"), [""])
sketch18.MapMode = "FlatFace"
sketch18.addGeometry(Part.Circle(V(40.8, -44.9, 0), V(0, 0, 1), 2), False)
sketch18.addConstraint(Sketcher.Constraint("Diameter", 0, Q("0.157 in")))
sketch18.addConstraint(Sketcher.Constraint("DistanceX", -1, 1, 0, 3, 40.8))
sketch18.addConstraint(Sketcher.Constraint("DistanceY", 0, 3, -1, 1, 44.9012))
pad12 = body.newObject("PartDesign::Pad", "Pad011")
pad12.Profile = sketch18
pad12.Length = Q("0.0785 in")

sketch19 = body.newObject("Sketcher::SketchObject", "Sketch018")
sketch19.AttachmentSupport = (doc.getObject("XZ_Plane"), [""])
sketch19.MapMode = "FlatFace"
sketch19.addGeometry(Part.Circle(V(40.8, -44.9, 0), V(0, 0, 1), 0.9), False)
sketch19.addConstraint(Sketcher.Constraint("Diameter", 0, Q("0.068 in")))
sketch19.addConstraint(Sketcher.Constraint("DistanceX", -1, 1, 0, 3, 40.8))
sketch19.addConstraint(Sketcher.Constraint("DistanceY", 0, 3, -1, 1, 44.9012))
pocket7 = body.newObject("PartDesign::Pocket", "Pocket006")
pocket7.Profile = sketch19
pocket7.Type = "UpToFirst"
pocket7.Reversed = True

sketch20 = body.newObject("Sketcher::SketchObject", "Sketch019")
sketch20.AttachmentSupport = (doc.getObject("XZ_Plane"), [""])
sketch20.MapMode = "FlatFace"
sketch20.addGeometry(Part.Circle(V(49, -21.8, 0), V(0, 0, 1), 0.9), False)
sketch20.addConstraint(Sketcher.Constraint("Diameter", 0, Q("0.068 in")))
sketch20.addConstraint(Sketcher.Constraint("DistanceX", -1, 1, 0, 3, 49.0))
sketch20.addConstraint(Sketcher.Constraint("DistanceY", 0, 3, -1, 1, 21.8012))
pocket8 = body.newObject("PartDesign::Pocket", "Pocket007")
pocket8.Profile = sketch20
pocket8.Type = "UpToFirst"
pocket8.Reversed = True

sketch21 = body.newObject("Sketcher::SketchObject", "Sketch020")
sketch21.AttachmentSupport = (doc.getObject("XZ_Plane"), [""])
sketch21.MapMode = "FlatFace"
sketch21.addGeometry(Part.Circle(V(3, -30.1, 0), V(0, 0, 1), 0.9), False)
sketch21.addConstraint(Sketcher.Constraint("Diameter", 0, Q("0.068 in")))
sketch21.addConstraint(Sketcher.Constraint("DistanceX", -1, 1, 0, 3, 3.0))
sketch21.addConstraint(Sketcher.Constraint("DistanceY", 0, 3, -1, 1, 30.1))
pocket9 = body.newObject("PartDesign::Pocket", "Pocket008")
pocket9.Profile = sketch21
pocket9.Type = "UpToFirst"
pocket9.Reversed = True

sketch22 = body.newObject("Sketcher::SketchObject", "Sketch021")
sketch22.AttachmentSupport = (doc.getObject("XZ_Plane"), [""])
sketch22.MapMode = "FlatFace"
sketch22.addGeometry(Part.LineSegment(V(44, -37, 0), V(44, -25, 0)), False)
sketch22.addGeometry(Part.LineSegment(V(44, -25, 0), V(32, -25, 0)), False)
sketch22.addGeometry(Part.LineSegment(V(32, -25, 0), V(32, -37, 0)), False)
sketch22.addGeometry(Part.LineSegment(V(32, -37, 0), V(44, -37, 0)), False)
sketch22.addConstraint(Sketcher.Constraint("Coincident", 0, 2, 1, 1))
sketch22.addConstraint(Sketcher.Constraint("Coincident", 1, 2, 2, 1))
sketch22.addConstraint(Sketcher.Constraint("Coincident", 2, 2, 3, 1))
sketch22.addConstraint(Sketcher.Constraint("Coincident", 3, 2, 0, 1))
sketch22.addConstraint(Sketcher.Constraint("Vertical", 0))
sketch22.addConstraint(Sketcher.Constraint("Horizontal", 1))
sketch22.addConstraint(Sketcher.Constraint("Vertical", 2))
sketch22.addConstraint(Sketcher.Constraint("Horizontal", 3))
sketch22.addConstraint(Sketcher.Constraint("Equal", 3, 0))
sketch22.addConstraint(Sketcher.Constraint("DistanceX", 1, 2, 1, 1, Q("0.477 in")))
sketch22.addConstraint(Sketcher.Constraint("DistanceX", -1, 1, 0, 2, 43.872))
sketch22.addConstraint(Sketcher.Constraint("DistanceY", 0, 2, -1, 1, 25.14))
pad13 = body.newObject("PartDesign::Pad", "Pad012")
pad13.Profile = sketch22
pad13.Length = Q("0.058 in")

sketch23 = body.newObject("Sketcher::SketchObject", "Sketch022")
sketch23.AttachmentSupport = (doc.getObject("XZ_Plane"), [""])
sketch23.MapMode = "FlatFace"
sketch23.AttachmentOffset = App.Placement(V(0, 0, -1.04), App.Rotation())
sketch23.addGeometry(Part.LineSegment(V(52, -38.1, 0), V(47.2, -38.1, 0)), False)
sketch23.addGeometry(Part.LineSegment(V(47.2, -38.1, 0), V(47.2, -27.2, 0)), False)
sketch23.addGeometry(Part.LineSegment(V(47.2, -27.2, 0), V(48.6, -25.8, 0)), False)
sketch23.addGeometry(Part.LineSegment(V(48.6, -25.8, 0), V(52, -25.8, 0)), False)
sketch23.addGeometry(Part.LineSegment(V(52, -25.8, 0), V(52, -38.1, 0)), False)
sketch23.addConstraint(Sketcher.Constraint("Coincident", 0, 2, 1, 1))
sketch23.addConstraint(Sketcher.Constraint("Coincident", 1, 2, 2, 1))
sketch23.addConstraint(Sketcher.Constraint("Coincident", 2, 2, 3, 1))
sketch23.addConstraint(Sketcher.Constraint("Coincident", 3, 2, 4, 1))
sketch23.addConstraint(Sketcher.Constraint("Coincident", 4, 2, 0, 1))
sketch23.addConstraint(Sketcher.Constraint("Horizontal", 0))
sketch23.addConstraint(Sketcher.Constraint("Vertical", 1))
sketch23.addConstraint(Sketcher.Constraint("Horizontal", 3))
sketch23.addConstraint(Sketcher.Constraint("Vertical", 4))
sketch23.addConstraint(Sketcher.Constraint("Angle", 2, Q("45 deg")))
sketch23.addConstraint(Sketcher.Constraint("DistanceX", 0, 2, 0, 1, Q("0.19 in")))
sketch23.addConstraint(Sketcher.Constraint("Distance", 2, Q("0.08 in")))
sketch23.addConstraint(Sketcher.Constraint("DistanceY", 4, 2, 4, 1, Q("0.487 in")))
sketch23.addConstraint(Sketcher.Constraint("DistanceY", 0, 2, -1, 1, Q("1.501 in")))
sketch23.addConstraint(Sketcher.Constraint("DistanceX", -1, 1, 0, 2, 47.1994))
pad14 = body.newObject("PartDesign::Pad", "Pad013")
pad14.Profile = sketch23
pad14.Length = Q("0.228 in")
pad14.Reversed = True

sketch24 = body.newObject("Sketcher::SketchObject", "Sketch023")
sketch24.AttachmentSupport = (doc.getObject("XZ_Plane"), [""])
sketch24.MapMode = "FlatFace"
sketch24.AttachmentOffset = App.Placement(V(0, 0, -6.8312), App.Rotation())
sketch24.addGeometry(Part.LineSegment(V(51.4, -37.5, 0), V(49.1, -37.5, 0)), False)
sketch24.addGeometry(Part.LineSegment(V(49.1, -37.5, 0), V(47.9, -36.2, 0)), False)
sketch24.addGeometry(Part.LineSegment(V(47.9, -36.2, 0), V(47.9, -27.5, 0)), False)
sketch24.addGeometry(Part.LineSegment(V(47.9, -27.5, 0), V(48.9, -26.4, 0)), False)
sketch24.addGeometry(Part.LineSegment(V(48.9, -26.4, 0), V(51.4, -26.4, 0)), False)
sketch24.addGeometry(Part.LineSegment(V(51.4, -26.4, 0), V(51.4, -37.5, 0)), False)
sketch24.addConstraint(Sketcher.Constraint("Coincident", 0, 2, 1, 1))
sketch24.addConstraint(Sketcher.Constraint("Coincident", 1, 2, 2, 1))
sketch24.addConstraint(Sketcher.Constraint("Coincident", 2, 2, 3, 1))
sketch24.addConstraint(Sketcher.Constraint("Coincident", 3, 2, 4, 1))
sketch24.addConstraint(Sketcher.Constraint("Coincident", 4, 2, 5, 1))
sketch24.addConstraint(Sketcher.Constraint("Coincident", 5, 2, 0, 1))
sketch24.addConstraint(Sketcher.Constraint("Horizontal", 0))
sketch24.addConstraint(Sketcher.Constraint("Vertical", 2))
sketch24.addConstraint(Sketcher.Constraint("Horizontal", 4))
sketch24.addConstraint(Sketcher.Constraint("Vertical", 5))
sketch24.addConstraint(Sketcher.Constraint("Perpendicular", 1, 3))
sketch24.addConstraint(Sketcher.Constraint("Angle", 1, Q("135 deg")))
sketch24.addConstraint(Sketcher.Constraint("DistanceY", 5, 2, 5, 1, Q("0.435 in")))
sketch24.addConstraint(Sketcher.Constraint("DistanceY", 3, 2, -1, 1, Q("1.04 in")))
sketch24.addConstraint(Sketcher.Constraint("Distance", 1, Q("0.071 in")))
sketch24.addConstraint(Sketcher.Constraint("DistanceX", 2, 2, 4, 2, Q("0.138 in")))
sketch24.addConstraint(Sketcher.Constraint("DistanceX", -1, 1, 1, 2, 47.8598))
sketch24.addConstraint(Sketcher.Constraint("DistanceX", 4, 1, 4, 2, 2.455212))
pocket10 = body.newObject("PartDesign::Pocket", "Pocket009")
pocket10.Profile = sketch24
pocket10.Length = Q("0.164 in")
pocket10.Reversed = True

sketch25 = body.newObject("Sketcher::SketchObject", "Sketch024")
sketch25.AttachmentSupport = (doc.getObject("XZ_Plane"), [""])
sketch25.MapMode = "FlatFace"
sketch25.AttachmentOffset = App.Placement(V(0, 0, -1.04), App.Rotation())
sketch25.addGeometry(Part.LineSegment(V(39, -15, 0), V(39, -10, 0)), False)
sketch25.addGeometry(Part.LineSegment(V(39, -10, 0), V(51, -10, 0)), False)
sketch25.addGeometry(Part.LineSegment(V(51, -10, 0), V(51, -15, 0)), False)
sketch25.addGeometry(Part.LineSegment(V(51, -15, 0), V(39, -15, 0)), False)
sketch25.addConstraint(Sketcher.Constraint("Coincident", 0, 2, 1, 1))
sketch25.addConstraint(Sketcher.Constraint("Coincident", 1, 2, 2, 1))
sketch25.addConstraint(Sketcher.Constraint("Coincident", 2, 2, 3, 1))
sketch25.addConstraint(Sketcher.Constraint("Coincident", 3, 2, 0, 1))
sketch25.addConstraint(Sketcher.Constraint("Vertical", 0))
sketch25.addConstraint(Sketcher.Constraint("Horizontal", 1))
sketch25.addConstraint(Sketcher.Constraint("Vertical", 2))
sketch25.addConstraint(Sketcher.Constraint("Horizontal", 3))
sketch25.addConstraint(Sketcher.Constraint("DistanceX", 1, 1, 1, 2, Q("0.453 in")))
sketch25.addConstraint(Sketcher.Constraint("DistanceY", 0, 1, 0, 2, Q("0.218 in")))
sketch25.addConstraint(Sketcher.Constraint("DistanceY", 0, 2, -1, 1, Q("0.388 in")))
sketch25.addConstraint(Sketcher.Constraint("DistanceX", -1, 1, 0, 2, 39.0968))
pad15 = body.newObject("PartDesign::Pad", "Pad014")
pad15.Profile = sketch25
pad15.Length = Q("0.13 in")
pad15.Reversed = True

sketch26 = body.newObject("Sketcher::SketchObject", "Sketch025")
sketch26.AttachmentSupport = (doc.getObject("XZ_Plane"), [""])
sketch26.MapMode = "FlatFace"
sketch26.AttachmentOffset = App.Placement(V(0, 0, -1.04), App.Rotation())
sketch26.addGeometry(Part.LineSegment(V(25, -20, 0), V(25, -2, 0)), False)
sketch26.addGeometry(Part.LineSegment(V(25, -2, 0), V(39, -2, 0)), False)
sketch26.addGeometry(Part.LineSegment(V(39, -2, 0), V(39, -20, 0)), False)
sketch26.addGeometry(Part.LineSegment(V(39, -20, 0), V(25, -20, 0)), False)
sketch26.addConstraint(Sketcher.Constraint("Coincident", 0, 2, 1, 1))
sketch26.addConstraint(Sketcher.Constraint("Coincident", 1, 2, 2, 1))
sketch26.addConstraint(Sketcher.Constraint("Coincident", 2, 2, 3, 1))
sketch26.addConstraint(Sketcher.Constraint("Coincident", 3, 2, 0, 1))
sketch26.addConstraint(Sketcher.Constraint("Vertical", 0))
sketch26.addConstraint(Sketcher.Constraint("Horizontal", 1))
sketch26.addConstraint(Sketcher.Constraint("Vertical", 2))
sketch26.addConstraint(Sketcher.Constraint("Horizontal", 3))
sketch26.addConstraint(Sketcher.Constraint("DistanceX", 1, 1, 1, 2, Q("0.537 in")))
sketch26.addConstraint(Sketcher.Constraint("DistanceY", 0, 1, 0, 2, Q("0.717 in")))
sketch26.addConstraint(Sketcher.Constraint("DistanceX", -1, 1, 0, 2, Q("0.997 in")))
sketch26.addConstraint(Sketcher.Constraint("DistanceY", 0, 2, -1, 1, Q("0.0795 in")))
pad16 = body.newObject("PartDesign::Pad", "Pad015")
pad16.Profile = sketch26
pad16.Length = Q("0.07 in")
pad16.Reversed = True

sketch27 = body.newObject("Sketcher::SketchObject", "Sketch026")
sketch27.AttachmentSupport = (doc.getObject("XZ_Plane"), [""])
sketch27.MapMode = "FlatFace"
sketch27.AttachmentOffset = App.Placement(V(0, 0, -2.818), App.Rotation())
sketch27.addGeometry(Part.LineSegment(V(26, -18, 0), V(26, -2, 0)), False)
sketch27.addGeometry(Part.LineSegment(V(26, -2, 0), V(38, -2, 0)), False)
sketch27.addGeometry(Part.LineSegment(V(38, -2, 0), V(38, -18, 0)), False)
sketch27.addGeometry(Part.LineSegment(V(38, -18, 0), V(26, -18, 0)), False)
sketch27.addConstraint(Sketcher.Constraint("Coincident", 0, 2, 1, 1))
sketch27.addConstraint(Sketcher.Constraint("Coincident", 1, 2, 2, 1))
sketch27.addConstraint(Sketcher.Constraint("Coincident", 2, 2, 3, 1))
sketch27.addConstraint(Sketcher.Constraint("Coincident", 3, 2, 0, 1))
sketch27.addConstraint(Sketcher.Constraint("Vertical", 0))
sketch27.addConstraint(Sketcher.Constraint("Horizontal", 1))
sketch27.addConstraint(Sketcher.Constraint("Vertical", 2))
sketch27.addConstraint(Sketcher.Constraint("Horizontal", 3))
sketch27.addConstraint(Sketcher.Constraint("DistanceX", 1, 1, 1, 2, Q("0.485 in")))
sketch27.addConstraint(Sketcher.Constraint("DistanceY", 0, 1, 0, 2, Q("0.636 in")))
sketch27.addConstraint(Sketcher.Constraint("DistanceX", -1, 1, 0, 2, Q("1.023 in")))
sketch27.addConstraint(Sketcher.Constraint("DistanceY", 0, 2, -1, 1, Q("0.0805 in")))
pad17 = body.newObject("PartDesign::Pad", "Pad016")
pad17.Profile = sketch27
pad17.Length = Q("0.031 in")
pad17.Reversed = True

doc.recompute()
